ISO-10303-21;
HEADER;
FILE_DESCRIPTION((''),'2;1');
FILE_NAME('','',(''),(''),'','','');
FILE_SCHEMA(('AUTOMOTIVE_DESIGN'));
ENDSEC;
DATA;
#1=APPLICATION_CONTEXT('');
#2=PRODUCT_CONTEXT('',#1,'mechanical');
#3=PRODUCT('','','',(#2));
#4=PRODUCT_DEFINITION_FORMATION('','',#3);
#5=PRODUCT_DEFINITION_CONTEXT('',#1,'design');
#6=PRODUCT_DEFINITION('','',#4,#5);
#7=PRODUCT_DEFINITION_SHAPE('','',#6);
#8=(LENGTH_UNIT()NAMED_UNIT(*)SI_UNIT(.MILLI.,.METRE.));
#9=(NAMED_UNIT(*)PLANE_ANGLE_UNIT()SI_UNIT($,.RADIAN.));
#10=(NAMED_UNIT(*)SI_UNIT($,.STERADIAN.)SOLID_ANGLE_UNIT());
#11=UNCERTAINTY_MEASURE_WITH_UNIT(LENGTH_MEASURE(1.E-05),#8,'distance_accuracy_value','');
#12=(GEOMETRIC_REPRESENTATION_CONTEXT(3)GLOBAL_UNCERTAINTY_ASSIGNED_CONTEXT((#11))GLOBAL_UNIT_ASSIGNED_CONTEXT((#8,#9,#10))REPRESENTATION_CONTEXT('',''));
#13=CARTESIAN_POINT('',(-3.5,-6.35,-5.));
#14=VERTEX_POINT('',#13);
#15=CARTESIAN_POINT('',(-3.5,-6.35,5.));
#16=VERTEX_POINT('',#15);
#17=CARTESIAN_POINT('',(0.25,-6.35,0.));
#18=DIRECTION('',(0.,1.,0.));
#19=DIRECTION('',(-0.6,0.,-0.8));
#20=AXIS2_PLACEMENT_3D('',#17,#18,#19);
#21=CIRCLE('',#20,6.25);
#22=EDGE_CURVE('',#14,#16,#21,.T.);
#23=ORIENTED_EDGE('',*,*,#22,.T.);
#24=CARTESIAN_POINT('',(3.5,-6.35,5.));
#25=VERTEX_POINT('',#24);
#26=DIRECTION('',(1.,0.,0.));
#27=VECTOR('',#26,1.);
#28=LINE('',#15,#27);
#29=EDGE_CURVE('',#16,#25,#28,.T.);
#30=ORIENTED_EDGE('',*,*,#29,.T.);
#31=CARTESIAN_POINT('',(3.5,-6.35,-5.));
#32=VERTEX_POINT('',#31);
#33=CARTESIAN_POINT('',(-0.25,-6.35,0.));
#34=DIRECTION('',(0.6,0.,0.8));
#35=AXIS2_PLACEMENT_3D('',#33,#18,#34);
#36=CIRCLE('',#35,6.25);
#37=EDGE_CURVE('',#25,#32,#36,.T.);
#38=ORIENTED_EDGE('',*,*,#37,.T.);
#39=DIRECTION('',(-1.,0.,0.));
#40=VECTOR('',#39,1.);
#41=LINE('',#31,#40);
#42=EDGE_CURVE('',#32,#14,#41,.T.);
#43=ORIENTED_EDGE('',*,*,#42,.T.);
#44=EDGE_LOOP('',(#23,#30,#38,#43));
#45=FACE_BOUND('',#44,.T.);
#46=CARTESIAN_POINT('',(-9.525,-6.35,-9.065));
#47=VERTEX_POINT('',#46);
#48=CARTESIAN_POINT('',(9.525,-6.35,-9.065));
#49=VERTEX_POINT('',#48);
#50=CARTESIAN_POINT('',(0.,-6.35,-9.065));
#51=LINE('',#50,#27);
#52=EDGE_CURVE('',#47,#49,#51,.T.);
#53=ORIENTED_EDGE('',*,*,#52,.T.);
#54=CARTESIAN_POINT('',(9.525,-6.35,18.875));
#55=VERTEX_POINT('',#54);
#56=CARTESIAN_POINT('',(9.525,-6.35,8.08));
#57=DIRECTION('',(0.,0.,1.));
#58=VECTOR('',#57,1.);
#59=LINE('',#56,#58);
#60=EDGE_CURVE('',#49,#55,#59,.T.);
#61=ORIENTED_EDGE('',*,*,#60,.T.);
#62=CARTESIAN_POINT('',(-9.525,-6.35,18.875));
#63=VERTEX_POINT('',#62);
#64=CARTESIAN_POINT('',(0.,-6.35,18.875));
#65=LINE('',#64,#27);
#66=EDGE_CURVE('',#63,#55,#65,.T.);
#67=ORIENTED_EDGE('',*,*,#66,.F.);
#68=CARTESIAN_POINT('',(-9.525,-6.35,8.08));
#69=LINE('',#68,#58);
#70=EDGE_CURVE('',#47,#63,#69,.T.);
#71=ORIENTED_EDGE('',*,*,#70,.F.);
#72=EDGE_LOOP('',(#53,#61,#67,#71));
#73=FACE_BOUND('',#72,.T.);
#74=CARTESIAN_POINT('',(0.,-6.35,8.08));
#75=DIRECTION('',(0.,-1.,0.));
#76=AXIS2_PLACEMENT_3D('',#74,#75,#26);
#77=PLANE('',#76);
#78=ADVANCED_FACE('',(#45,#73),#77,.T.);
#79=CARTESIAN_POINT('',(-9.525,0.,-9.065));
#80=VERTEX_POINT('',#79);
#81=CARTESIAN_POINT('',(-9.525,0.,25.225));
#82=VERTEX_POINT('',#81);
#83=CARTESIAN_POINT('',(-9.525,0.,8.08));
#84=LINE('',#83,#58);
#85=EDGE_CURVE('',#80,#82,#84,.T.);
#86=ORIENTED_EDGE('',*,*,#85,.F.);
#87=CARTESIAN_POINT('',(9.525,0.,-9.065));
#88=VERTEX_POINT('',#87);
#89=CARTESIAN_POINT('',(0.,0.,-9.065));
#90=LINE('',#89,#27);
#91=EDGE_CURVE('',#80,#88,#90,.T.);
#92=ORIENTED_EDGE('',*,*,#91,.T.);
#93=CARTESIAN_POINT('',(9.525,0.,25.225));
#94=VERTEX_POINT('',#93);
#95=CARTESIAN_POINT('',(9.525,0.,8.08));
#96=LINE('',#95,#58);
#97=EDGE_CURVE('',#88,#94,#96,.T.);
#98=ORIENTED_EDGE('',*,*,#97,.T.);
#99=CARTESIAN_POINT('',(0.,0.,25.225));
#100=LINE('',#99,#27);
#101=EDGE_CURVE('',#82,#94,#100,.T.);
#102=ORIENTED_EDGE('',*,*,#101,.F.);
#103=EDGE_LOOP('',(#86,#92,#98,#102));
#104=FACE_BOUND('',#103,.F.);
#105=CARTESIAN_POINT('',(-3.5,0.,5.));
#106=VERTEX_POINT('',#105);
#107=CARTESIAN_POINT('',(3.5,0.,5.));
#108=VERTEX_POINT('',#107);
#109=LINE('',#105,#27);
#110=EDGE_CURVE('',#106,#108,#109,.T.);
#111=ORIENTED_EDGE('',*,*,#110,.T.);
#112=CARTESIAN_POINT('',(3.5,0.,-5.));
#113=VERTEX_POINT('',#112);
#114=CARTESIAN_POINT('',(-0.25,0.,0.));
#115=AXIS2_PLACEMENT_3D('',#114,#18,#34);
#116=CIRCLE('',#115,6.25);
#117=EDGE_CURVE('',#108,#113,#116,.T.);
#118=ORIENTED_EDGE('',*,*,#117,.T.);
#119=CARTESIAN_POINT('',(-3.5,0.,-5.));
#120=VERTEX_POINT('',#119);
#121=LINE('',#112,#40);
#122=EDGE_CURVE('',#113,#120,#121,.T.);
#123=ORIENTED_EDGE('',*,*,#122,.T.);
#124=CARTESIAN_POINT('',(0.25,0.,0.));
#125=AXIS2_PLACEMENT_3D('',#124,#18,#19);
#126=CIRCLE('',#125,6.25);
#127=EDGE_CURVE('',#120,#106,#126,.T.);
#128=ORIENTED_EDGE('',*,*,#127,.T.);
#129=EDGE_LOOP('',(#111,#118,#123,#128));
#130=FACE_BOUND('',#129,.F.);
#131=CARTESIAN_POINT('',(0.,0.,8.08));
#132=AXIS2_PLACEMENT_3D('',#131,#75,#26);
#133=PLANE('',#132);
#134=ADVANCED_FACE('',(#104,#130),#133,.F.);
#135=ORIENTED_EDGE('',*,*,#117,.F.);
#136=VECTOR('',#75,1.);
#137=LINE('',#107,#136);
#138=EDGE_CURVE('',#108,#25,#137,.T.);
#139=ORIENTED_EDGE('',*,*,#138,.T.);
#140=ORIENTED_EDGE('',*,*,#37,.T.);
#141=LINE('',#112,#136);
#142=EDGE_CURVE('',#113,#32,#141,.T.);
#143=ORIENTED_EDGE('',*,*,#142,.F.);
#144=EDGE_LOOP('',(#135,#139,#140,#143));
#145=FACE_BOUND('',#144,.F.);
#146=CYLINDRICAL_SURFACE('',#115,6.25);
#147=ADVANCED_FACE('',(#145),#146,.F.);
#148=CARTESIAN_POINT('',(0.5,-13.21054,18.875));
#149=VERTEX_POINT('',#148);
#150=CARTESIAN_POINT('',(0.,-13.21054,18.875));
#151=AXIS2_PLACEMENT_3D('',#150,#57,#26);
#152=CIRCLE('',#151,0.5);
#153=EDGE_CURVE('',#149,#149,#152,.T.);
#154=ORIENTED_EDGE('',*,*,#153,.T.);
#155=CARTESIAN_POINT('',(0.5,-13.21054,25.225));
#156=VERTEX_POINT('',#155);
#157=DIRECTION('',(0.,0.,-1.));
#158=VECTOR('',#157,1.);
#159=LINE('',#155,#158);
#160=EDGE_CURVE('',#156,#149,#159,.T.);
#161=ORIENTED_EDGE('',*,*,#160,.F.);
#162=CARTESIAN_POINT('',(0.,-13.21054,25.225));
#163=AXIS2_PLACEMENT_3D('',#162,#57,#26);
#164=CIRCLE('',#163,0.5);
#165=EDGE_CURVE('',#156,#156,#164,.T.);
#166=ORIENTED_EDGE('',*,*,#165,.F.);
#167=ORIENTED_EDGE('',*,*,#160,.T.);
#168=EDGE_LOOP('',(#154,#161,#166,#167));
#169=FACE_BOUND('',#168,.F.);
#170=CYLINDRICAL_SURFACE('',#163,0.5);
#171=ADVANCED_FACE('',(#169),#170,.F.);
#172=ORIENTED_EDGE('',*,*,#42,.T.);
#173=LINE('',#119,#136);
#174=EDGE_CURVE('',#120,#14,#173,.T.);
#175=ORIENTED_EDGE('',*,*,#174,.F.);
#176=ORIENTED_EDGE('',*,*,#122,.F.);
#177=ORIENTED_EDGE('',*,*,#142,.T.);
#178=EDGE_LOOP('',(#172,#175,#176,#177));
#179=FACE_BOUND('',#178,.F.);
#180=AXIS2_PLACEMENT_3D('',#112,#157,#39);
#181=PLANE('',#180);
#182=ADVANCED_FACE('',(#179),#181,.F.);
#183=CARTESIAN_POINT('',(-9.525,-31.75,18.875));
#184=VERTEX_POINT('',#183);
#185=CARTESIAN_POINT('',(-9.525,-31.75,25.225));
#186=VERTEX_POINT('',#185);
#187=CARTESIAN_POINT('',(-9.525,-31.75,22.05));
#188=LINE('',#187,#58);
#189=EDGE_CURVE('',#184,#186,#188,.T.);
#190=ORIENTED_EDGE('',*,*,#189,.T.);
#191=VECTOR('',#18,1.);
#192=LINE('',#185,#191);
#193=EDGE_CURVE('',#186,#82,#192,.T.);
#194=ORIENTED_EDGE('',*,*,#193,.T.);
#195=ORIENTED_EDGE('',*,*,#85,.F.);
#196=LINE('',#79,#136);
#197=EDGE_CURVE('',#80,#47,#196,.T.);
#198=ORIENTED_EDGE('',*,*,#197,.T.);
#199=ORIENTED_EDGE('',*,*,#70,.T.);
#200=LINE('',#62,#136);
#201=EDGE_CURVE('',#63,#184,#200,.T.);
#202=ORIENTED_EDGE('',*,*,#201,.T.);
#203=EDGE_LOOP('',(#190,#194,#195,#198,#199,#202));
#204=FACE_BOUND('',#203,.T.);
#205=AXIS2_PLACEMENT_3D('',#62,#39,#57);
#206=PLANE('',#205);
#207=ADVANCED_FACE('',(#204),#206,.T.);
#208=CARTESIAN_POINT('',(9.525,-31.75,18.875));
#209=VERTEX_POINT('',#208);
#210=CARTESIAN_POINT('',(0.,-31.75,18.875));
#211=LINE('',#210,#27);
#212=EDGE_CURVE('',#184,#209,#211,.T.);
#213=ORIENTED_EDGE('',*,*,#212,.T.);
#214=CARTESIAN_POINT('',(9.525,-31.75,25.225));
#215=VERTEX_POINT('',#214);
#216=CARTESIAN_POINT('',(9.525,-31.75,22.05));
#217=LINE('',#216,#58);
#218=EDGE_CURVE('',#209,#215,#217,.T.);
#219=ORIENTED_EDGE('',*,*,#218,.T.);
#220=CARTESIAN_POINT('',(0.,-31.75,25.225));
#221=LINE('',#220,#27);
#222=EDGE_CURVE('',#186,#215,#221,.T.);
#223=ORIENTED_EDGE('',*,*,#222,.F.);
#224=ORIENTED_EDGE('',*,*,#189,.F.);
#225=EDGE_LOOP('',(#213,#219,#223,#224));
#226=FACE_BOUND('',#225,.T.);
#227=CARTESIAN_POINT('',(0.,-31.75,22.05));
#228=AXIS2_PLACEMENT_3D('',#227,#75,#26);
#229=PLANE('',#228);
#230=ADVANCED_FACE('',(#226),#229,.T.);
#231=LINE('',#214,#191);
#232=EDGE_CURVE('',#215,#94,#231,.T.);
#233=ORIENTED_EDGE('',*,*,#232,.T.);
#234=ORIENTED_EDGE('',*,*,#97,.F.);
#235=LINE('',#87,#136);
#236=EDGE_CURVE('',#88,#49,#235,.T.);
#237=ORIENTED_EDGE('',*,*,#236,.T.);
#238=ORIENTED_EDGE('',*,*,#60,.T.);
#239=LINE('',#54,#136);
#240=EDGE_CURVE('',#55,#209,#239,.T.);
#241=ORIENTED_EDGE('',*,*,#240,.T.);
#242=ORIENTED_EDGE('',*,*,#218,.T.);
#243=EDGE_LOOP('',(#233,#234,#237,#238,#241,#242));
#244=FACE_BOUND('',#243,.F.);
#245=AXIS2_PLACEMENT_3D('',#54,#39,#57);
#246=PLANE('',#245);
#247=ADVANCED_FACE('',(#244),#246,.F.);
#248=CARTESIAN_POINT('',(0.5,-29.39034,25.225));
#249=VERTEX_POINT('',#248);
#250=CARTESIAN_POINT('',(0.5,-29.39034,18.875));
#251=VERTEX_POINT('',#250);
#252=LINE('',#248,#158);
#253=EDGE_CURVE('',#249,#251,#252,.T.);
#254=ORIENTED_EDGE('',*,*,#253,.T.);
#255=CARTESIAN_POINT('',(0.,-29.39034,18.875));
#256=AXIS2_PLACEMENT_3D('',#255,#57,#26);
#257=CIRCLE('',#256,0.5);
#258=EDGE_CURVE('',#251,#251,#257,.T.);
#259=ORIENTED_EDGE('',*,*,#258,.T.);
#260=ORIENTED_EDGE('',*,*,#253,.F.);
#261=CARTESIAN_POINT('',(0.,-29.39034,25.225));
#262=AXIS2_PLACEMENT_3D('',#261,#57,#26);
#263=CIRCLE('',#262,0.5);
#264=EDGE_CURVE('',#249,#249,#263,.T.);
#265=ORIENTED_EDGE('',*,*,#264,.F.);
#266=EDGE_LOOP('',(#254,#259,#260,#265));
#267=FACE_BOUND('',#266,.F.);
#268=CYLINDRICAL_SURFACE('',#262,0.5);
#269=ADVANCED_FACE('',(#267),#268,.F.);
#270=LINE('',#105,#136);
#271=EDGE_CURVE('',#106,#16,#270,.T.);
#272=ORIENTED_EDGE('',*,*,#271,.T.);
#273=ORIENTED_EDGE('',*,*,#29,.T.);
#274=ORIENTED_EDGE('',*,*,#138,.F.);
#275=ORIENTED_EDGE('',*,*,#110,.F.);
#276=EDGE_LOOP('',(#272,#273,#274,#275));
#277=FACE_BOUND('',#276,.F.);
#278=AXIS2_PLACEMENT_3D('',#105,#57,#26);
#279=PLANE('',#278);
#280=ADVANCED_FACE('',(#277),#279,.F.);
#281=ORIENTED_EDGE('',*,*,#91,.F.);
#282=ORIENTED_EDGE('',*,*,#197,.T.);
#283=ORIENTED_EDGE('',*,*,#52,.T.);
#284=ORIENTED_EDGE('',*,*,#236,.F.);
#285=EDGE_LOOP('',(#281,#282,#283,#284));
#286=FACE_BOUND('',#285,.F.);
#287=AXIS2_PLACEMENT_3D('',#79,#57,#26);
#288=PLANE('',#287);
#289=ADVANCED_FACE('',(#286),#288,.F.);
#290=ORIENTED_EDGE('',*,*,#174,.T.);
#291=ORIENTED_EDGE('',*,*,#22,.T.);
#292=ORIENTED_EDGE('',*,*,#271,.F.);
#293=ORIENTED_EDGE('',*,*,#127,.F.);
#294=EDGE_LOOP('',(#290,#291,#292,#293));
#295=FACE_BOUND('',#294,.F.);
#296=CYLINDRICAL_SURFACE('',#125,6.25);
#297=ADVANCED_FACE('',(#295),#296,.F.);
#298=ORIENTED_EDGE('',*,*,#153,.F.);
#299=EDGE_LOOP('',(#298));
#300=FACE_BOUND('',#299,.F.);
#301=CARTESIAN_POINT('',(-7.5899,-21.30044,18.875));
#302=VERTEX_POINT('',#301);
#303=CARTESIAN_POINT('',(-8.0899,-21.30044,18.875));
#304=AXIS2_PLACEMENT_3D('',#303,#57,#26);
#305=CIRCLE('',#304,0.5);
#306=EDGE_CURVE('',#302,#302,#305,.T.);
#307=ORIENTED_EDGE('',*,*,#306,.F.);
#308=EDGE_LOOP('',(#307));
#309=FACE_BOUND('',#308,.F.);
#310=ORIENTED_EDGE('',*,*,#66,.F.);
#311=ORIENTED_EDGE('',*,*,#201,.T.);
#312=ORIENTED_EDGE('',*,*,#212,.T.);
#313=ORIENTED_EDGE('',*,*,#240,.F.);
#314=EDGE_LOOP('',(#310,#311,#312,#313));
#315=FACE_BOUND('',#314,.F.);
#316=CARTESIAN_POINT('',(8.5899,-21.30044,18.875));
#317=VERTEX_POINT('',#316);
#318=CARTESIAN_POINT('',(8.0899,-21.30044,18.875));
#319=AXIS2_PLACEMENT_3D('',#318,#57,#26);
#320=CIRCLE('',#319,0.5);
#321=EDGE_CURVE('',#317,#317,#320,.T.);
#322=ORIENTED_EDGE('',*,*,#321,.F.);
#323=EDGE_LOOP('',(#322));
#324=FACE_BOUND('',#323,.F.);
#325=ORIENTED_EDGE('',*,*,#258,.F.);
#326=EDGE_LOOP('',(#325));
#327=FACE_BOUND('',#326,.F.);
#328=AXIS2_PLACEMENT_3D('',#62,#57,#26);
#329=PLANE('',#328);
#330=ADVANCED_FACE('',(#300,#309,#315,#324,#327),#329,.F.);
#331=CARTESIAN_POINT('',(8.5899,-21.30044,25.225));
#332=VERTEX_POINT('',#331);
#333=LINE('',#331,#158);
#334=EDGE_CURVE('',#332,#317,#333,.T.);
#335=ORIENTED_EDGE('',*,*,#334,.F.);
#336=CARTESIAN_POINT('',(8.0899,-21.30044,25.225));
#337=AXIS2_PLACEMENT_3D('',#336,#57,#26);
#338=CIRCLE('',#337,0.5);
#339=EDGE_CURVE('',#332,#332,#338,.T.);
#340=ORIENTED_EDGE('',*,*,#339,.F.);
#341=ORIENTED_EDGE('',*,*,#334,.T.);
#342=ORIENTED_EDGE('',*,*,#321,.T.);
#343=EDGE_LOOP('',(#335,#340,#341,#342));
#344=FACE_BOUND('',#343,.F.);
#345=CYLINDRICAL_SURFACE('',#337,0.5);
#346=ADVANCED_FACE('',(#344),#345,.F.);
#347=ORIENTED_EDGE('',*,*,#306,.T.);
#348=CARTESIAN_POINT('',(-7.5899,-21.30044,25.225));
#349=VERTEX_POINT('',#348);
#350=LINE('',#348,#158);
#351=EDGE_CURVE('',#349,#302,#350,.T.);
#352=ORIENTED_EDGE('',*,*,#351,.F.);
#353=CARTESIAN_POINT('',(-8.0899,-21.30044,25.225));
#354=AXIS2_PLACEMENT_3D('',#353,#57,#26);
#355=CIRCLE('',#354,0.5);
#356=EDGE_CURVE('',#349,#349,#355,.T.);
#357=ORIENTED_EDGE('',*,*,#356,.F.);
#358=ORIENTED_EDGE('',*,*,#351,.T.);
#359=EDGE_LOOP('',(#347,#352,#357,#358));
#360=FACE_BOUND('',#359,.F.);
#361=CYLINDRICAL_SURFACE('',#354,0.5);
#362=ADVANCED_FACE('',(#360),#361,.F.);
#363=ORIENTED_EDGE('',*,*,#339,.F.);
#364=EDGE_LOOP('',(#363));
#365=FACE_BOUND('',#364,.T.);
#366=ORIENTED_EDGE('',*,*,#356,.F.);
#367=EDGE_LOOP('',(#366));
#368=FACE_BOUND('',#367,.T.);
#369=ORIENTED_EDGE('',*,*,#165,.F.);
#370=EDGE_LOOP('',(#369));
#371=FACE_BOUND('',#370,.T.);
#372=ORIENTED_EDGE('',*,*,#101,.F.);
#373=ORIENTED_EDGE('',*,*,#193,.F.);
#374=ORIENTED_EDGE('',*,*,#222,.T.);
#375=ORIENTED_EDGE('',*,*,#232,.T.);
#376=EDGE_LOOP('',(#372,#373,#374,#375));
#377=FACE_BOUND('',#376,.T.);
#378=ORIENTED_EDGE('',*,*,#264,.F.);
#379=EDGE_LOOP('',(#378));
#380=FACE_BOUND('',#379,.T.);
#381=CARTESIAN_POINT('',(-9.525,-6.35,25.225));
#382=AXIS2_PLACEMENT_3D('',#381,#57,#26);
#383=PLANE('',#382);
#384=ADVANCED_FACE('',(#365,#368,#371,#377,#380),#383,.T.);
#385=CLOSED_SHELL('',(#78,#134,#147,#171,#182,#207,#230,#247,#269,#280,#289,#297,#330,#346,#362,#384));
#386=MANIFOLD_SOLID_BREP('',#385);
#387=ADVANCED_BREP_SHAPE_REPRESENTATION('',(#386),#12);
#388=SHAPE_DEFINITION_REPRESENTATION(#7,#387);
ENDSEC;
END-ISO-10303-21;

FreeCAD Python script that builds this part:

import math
import FreeCAD as App
import Part
import Sketcher
Q = App.Units.Quantity

doc = App.newDocument("Part")
body = doc.addObject("PartDesign::Body", "Body")

sketch1 = doc.addObject("Sketcher::SketchObject", "Sketch")
body.addObject(sketch1)
sketch1.AttachmentSupport = (doc.XZ_Plane, [""])
sketch1.MapMode = "FlatFace"
sketch1.addGeometry([
    Part.LineSegment(App.Vector(-9.525, 25.225, 0), App.Vector(-9.525, -9.065, 0)),
    Part.LineSegment(App.Vector(-9.525, -9.065, 0), App.Vector(9.525, -9.065, 0)),
    Part.LineSegment(App.Vector(9.525, -9.065, 0), App.Vector(9.525, 25.225, 0)),
    Part.LineSegment(App.Vector(9.525, 25.225, 0), App.Vector(-9.525, 25.225, 0)),
    Part.LineSegment(App.Vector(3.5, -5, 0), App.Vector(-3.5, -5, 0)),
    Part.ArcOfCircle(Part.Circle(App.Vector(0.25, 0, 0), App.Vector(0, 0, 1), 6.25), math.radians(126.869898), math.radians(233.130102)),
    Part.LineSegment(App.Vector(-3.5, 5, 0), App.Vector(3.5, 5, 0)),
    Part.ArcOfCircle(Part.Circle(App.Vector(-0.25, 0, 0), App.Vector(0, 0, 1), 6.25), math.radians(-53.130102), math.radians(53.130102)),
], False)
sketch1.addConstraint([
    Sketcher.Constraint("Coincident", 0, 2, 1, 1),
    Sketcher.Constraint("Coincident", 1, 2, 2, 1),
    Sketcher.Constraint("Coincident", 2, 2, 3, 1),
    Sketcher.Constraint("Coincident", 3, 2, 0, 1),
    Sketcher.Constraint("Coincident", 4, 2, 5, 2),
    Sketcher.Constraint("Coincident", 5, 1, 6, 1),
    Sketcher.Constraint("Coincident", 6, 2, 7, 2),
    Sketcher.Constraint("Coincident", 7, 1, 4, 1),
    Sketcher.Constraint("Vertical", 0),
    Sketcher.Constraint("Horizontal", 1),
    Sketcher.Constraint("Vertical", 2),
    Sketcher.Constraint("Horizontal", 3),
    Sketcher.Constraint("Horizontal", 4),
    Sketcher.Constraint("Horizontal", 6),
    Sketcher.Constraint("Equal", 5, 7),
    Sketcher.Constraint("Symmetric", 5, 3, 7, 3, -1, 1),
    Sketcher.Constraint("Symmetric", 4, 2, 5, 1, -1),
    Sketcher.Constraint("DistanceX", 1, 1, 1, 2, Q("0.75 in")),
    Sketcher.Constraint("DistanceY", 0, 2, 0, 1, Q("1.35 in")),
    Sketcher.Constraint("Radius", 5, 6.25),
    Sketcher.Constraint("DistanceX", 0, 2, -1, 1, Q("0.375 in")),
    Sketcher.Constraint("DistanceX", 4, 2, 4, 1, 7.0),
    Sketcher.Constraint("DistanceX", -1, 1, 5, 3, 0.25),
    Sketcher.Constraint("DistanceY", 0, 2, -1, 1, 9.065),
])
pad1 = doc.addObject("PartDesign::Pad", "Pad")
body.addObject(pad1)
pad1.Profile = sketch1
pad1.Length = Q("0.25 in")

sketch2 = doc.addObject("Sketcher::SketchObject", "Sketch001")
body.addObject(sketch2)
sketch2.AttachmentSupport = (doc.XZ_Plane, [""])
sketch2.MapMode = "FlatFace"
sketch2.AttachmentOffset = App.Placement(App.Vector(0, 0, 0.25 * 25.4), App.Rotation())
sketch2.addGeometry([
    Part.LineSegment(App.Vector(-10, 25, 0), App.Vector(-10, 19, 0)),
    Part.LineSegment(App.Vector(-10, 19, 0), App.Vector(10, 19, 0)),
    Part.LineSegment(App.Vector(10, 19, 0), App.Vector(10, 25, 0)),
    Part.LineSegment(App.Vector(10, 25, 0), App.Vector(-10, 25, 0)),
], False)
sketch2.addConstraint([
    Sketcher.Constraint("Coincident", 0, 2, 1, 1),
    Sketcher.Constraint("Coincident", 1, 2, 2, 1),
    Sketcher.Constraint("Coincident", 2, 2, 3, 1),
    Sketcher.Constraint("Coincident", 3, 2, 0, 1),
    Sketcher.Constraint("Vertical", 0),
    Sketcher.Constraint("Horizontal", 1),
    Sketcher.Constraint("Vertical", 2),
    Sketcher.Constraint("Horizontal", 3),
    Sketcher.Constraint("DistanceX", 1, 1, 1, 2, Q("0.75 in")),
    Sketcher.Constraint("DistanceY", 0, 2, 0, 1, Q("0.25 in")),
    Sketcher.Constraint("DistanceX", 0, 2, -1, 1, Q("0.375 in")),
    Sketcher.Constraint("DistanceY", -1, 1, 0, 2, 18.875),
])
pad2 = doc.addObject("PartDesign::Pad", "Pad001")
body.addObject(pad2)
pad2.Profile = sketch2
pad2.Length = Q("1 in")

sketch3 = doc.addObject("Sketcher::SketchObject", "Sketch002")
body.addObject(sketch3)
sketch3.AttachmentSupport = (doc.XY_Plane, [""])
sketch3.MapMode = "FlatFace"
sketch3.AttachmentOffset = App.Placement(App.Vector(0, 0, 25.225), App.Rotation())
sketch3.addGeometry([
    Part.Circle(App.Vector(-8.1, -21.3, 0), App.Vector(0, 0, 1), 0.5),
    Part.Circle(App.Vector(0, -29.4, 0), App.Vector(0, 0, 1), 0.5),
    Part.Circle(App.Vector(8.1, -21.3, 0), App.Vector(0, 0, 1), 0.5),
    Part.Circle(App.Vector(0, -13.2, 0), App.Vector(0, 0, 1), 0.5),
], False)
sketch3.addConstraint([
    Sketcher.Constraint("Equal", 0, 1),
    Sketcher.Constraint("Equal", 1, 2),
    Sketcher.Constraint("Equal", 2, 3),
    Sketcher.Constraint("Symmetric", 0, 3, 2, 3, -2),
    Sketcher.Constraint("PointOnObject", 1, 3, -2),
    Sketcher.Constraint("PointOnObject", 3, 3, -2),
    Sketcher.Constraint("Diameter", 0, 1.0),
    Sketcher.Constraint("DistanceX", 0, 3, 2, 3, Q("0.637 in")),
    Sketcher.Constraint("DistanceY", 1, 3, 3, 3, Q("0.637 in")),
    Sketcher.Constraint("DistanceY", 0, 3, -1, 1, Q("0.8386 in")),
    Sketcher.Constraint("DistanceY", 1, 3, -1, 1, Q("1.1571 in")),
])
pocket1 = doc.addObject("PartDesign::Pocket", "Pocket")
body.addObject(pocket1)
pocket1.Profile = sketch3
pocket1.Type = "ThroughAll"

doc.recompute()
